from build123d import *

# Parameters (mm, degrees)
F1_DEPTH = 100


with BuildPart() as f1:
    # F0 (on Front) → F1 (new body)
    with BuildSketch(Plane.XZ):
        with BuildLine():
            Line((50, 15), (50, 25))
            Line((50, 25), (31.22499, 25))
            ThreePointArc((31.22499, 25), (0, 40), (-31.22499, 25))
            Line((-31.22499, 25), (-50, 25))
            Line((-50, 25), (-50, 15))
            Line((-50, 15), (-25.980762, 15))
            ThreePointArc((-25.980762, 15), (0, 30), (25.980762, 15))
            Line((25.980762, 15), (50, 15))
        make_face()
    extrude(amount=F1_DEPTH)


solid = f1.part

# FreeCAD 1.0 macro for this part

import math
import FreeCAD as App
import Part
import Sketcher

doc = App.newDocument("Part")
body = doc.addObject("PartDesign::Body", "Body")

# Sketch on XZ plane
sketch1 = doc.addObject("Sketcher::SketchObject", "Sketch")
body.addObject(sketch1)
sketch1.AttachmentSupport = (doc.XZ_Plane, [""])
sketch1.MapMode = "FlatFace"
sketch1.addGeometry([
    Part.LineSegment(App.Vector(50, 15, 0), App.Vector(50, 25, 0)),  # 0
    Part.LineSegment(App.Vector(50, 25, 0), App.Vector(31, 25, 0)),  # 1
    Part.ArcOfCircle(Part.Circle(App.Vector(0, 0, 0), App.Vector(0, 0, 1), 40), math.radians(39), math.radians(141)),  # 2
    Part.LineSegment(App.Vector(-31, 25, 0), App.Vector(-50, 25, 0)),  # 3
    Part.LineSegment(App.Vector(-50, 25, 0), App.Vector(-50, 15, 0)),  # 4
    Part.LineSegment(App.Vector(-50, 15, 0), App.Vector(-26, 15, 0)),  # 5
    Part.ArcOfCircle(Part.Circle(App.Vector(0, 0, 0), App.Vector(0, 0, 1), 30), math.radians(30), math.radians(150)),  # 6
    Part.LineSegment(App.Vector(26, 15, 0), App.Vector(50, 15, 0)),  # 7
], False)
sketch1.addConstraint([
    Sketcher.Constraint("Coincident", 0, 2, 1, 1),
    Sketcher.Constraint("Coincident", 1, 2, 2, 1),
    Sketcher.Constraint("Coincident", 2, 2, 3, 1),
    Sketcher.Constraint("Coincident", 3, 2, 4, 1),
    Sketcher.Constraint("Coincident", 4, 2, 5, 1),
    Sketcher.Constraint("Coincident", 5, 2, 6, 2),
    Sketcher.Constraint("Coincident", 6, 1, 7, 1),
    Sketcher.Constraint("Coincident", 7, 2, 0, 1),
    Sketcher.Constraint("Vertical", 0),
    Sketcher.Constraint("Horizontal", 1),
    Sketcher.Constraint("Horizontal", 3),
    Sketcher.Constraint("Vertical", 4),
    Sketcher.Constraint("Horizontal", 5),
    Sketcher.Constraint("Horizontal", 7),
    Sketcher.Constraint("Coincident", 2, 3, -1, 1),
    Sketcher.Constraint("Coincident", 6, 3, -1, 1),
    Sketcher.Constraint("Symmetric", 0, 2, 3, 2, -2),
    Sketcher.Constraint("Horizontal", 5, 2, 6, 1),
    Sketcher.Constraint("Radius", 2, 40.0),
    Sketcher.Constraint("Radius", 6, 30.0),
    Sketcher.Constraint("DistanceY", 0, 1, 0, 2, 10.0),
    Sketcher.Constraint("DistanceX", -1, 1, 0, 2, 50.0),
    Sketcher.Constraint("DistanceY", -1, 1, 0, 2, 25.0),
])
pad1 = doc.addObject("PartDesign::Pad", "Pad")
body.addObject(pad1)
pad1.Profile = sketch1
pad1.Length = 100

doc.recompute()
